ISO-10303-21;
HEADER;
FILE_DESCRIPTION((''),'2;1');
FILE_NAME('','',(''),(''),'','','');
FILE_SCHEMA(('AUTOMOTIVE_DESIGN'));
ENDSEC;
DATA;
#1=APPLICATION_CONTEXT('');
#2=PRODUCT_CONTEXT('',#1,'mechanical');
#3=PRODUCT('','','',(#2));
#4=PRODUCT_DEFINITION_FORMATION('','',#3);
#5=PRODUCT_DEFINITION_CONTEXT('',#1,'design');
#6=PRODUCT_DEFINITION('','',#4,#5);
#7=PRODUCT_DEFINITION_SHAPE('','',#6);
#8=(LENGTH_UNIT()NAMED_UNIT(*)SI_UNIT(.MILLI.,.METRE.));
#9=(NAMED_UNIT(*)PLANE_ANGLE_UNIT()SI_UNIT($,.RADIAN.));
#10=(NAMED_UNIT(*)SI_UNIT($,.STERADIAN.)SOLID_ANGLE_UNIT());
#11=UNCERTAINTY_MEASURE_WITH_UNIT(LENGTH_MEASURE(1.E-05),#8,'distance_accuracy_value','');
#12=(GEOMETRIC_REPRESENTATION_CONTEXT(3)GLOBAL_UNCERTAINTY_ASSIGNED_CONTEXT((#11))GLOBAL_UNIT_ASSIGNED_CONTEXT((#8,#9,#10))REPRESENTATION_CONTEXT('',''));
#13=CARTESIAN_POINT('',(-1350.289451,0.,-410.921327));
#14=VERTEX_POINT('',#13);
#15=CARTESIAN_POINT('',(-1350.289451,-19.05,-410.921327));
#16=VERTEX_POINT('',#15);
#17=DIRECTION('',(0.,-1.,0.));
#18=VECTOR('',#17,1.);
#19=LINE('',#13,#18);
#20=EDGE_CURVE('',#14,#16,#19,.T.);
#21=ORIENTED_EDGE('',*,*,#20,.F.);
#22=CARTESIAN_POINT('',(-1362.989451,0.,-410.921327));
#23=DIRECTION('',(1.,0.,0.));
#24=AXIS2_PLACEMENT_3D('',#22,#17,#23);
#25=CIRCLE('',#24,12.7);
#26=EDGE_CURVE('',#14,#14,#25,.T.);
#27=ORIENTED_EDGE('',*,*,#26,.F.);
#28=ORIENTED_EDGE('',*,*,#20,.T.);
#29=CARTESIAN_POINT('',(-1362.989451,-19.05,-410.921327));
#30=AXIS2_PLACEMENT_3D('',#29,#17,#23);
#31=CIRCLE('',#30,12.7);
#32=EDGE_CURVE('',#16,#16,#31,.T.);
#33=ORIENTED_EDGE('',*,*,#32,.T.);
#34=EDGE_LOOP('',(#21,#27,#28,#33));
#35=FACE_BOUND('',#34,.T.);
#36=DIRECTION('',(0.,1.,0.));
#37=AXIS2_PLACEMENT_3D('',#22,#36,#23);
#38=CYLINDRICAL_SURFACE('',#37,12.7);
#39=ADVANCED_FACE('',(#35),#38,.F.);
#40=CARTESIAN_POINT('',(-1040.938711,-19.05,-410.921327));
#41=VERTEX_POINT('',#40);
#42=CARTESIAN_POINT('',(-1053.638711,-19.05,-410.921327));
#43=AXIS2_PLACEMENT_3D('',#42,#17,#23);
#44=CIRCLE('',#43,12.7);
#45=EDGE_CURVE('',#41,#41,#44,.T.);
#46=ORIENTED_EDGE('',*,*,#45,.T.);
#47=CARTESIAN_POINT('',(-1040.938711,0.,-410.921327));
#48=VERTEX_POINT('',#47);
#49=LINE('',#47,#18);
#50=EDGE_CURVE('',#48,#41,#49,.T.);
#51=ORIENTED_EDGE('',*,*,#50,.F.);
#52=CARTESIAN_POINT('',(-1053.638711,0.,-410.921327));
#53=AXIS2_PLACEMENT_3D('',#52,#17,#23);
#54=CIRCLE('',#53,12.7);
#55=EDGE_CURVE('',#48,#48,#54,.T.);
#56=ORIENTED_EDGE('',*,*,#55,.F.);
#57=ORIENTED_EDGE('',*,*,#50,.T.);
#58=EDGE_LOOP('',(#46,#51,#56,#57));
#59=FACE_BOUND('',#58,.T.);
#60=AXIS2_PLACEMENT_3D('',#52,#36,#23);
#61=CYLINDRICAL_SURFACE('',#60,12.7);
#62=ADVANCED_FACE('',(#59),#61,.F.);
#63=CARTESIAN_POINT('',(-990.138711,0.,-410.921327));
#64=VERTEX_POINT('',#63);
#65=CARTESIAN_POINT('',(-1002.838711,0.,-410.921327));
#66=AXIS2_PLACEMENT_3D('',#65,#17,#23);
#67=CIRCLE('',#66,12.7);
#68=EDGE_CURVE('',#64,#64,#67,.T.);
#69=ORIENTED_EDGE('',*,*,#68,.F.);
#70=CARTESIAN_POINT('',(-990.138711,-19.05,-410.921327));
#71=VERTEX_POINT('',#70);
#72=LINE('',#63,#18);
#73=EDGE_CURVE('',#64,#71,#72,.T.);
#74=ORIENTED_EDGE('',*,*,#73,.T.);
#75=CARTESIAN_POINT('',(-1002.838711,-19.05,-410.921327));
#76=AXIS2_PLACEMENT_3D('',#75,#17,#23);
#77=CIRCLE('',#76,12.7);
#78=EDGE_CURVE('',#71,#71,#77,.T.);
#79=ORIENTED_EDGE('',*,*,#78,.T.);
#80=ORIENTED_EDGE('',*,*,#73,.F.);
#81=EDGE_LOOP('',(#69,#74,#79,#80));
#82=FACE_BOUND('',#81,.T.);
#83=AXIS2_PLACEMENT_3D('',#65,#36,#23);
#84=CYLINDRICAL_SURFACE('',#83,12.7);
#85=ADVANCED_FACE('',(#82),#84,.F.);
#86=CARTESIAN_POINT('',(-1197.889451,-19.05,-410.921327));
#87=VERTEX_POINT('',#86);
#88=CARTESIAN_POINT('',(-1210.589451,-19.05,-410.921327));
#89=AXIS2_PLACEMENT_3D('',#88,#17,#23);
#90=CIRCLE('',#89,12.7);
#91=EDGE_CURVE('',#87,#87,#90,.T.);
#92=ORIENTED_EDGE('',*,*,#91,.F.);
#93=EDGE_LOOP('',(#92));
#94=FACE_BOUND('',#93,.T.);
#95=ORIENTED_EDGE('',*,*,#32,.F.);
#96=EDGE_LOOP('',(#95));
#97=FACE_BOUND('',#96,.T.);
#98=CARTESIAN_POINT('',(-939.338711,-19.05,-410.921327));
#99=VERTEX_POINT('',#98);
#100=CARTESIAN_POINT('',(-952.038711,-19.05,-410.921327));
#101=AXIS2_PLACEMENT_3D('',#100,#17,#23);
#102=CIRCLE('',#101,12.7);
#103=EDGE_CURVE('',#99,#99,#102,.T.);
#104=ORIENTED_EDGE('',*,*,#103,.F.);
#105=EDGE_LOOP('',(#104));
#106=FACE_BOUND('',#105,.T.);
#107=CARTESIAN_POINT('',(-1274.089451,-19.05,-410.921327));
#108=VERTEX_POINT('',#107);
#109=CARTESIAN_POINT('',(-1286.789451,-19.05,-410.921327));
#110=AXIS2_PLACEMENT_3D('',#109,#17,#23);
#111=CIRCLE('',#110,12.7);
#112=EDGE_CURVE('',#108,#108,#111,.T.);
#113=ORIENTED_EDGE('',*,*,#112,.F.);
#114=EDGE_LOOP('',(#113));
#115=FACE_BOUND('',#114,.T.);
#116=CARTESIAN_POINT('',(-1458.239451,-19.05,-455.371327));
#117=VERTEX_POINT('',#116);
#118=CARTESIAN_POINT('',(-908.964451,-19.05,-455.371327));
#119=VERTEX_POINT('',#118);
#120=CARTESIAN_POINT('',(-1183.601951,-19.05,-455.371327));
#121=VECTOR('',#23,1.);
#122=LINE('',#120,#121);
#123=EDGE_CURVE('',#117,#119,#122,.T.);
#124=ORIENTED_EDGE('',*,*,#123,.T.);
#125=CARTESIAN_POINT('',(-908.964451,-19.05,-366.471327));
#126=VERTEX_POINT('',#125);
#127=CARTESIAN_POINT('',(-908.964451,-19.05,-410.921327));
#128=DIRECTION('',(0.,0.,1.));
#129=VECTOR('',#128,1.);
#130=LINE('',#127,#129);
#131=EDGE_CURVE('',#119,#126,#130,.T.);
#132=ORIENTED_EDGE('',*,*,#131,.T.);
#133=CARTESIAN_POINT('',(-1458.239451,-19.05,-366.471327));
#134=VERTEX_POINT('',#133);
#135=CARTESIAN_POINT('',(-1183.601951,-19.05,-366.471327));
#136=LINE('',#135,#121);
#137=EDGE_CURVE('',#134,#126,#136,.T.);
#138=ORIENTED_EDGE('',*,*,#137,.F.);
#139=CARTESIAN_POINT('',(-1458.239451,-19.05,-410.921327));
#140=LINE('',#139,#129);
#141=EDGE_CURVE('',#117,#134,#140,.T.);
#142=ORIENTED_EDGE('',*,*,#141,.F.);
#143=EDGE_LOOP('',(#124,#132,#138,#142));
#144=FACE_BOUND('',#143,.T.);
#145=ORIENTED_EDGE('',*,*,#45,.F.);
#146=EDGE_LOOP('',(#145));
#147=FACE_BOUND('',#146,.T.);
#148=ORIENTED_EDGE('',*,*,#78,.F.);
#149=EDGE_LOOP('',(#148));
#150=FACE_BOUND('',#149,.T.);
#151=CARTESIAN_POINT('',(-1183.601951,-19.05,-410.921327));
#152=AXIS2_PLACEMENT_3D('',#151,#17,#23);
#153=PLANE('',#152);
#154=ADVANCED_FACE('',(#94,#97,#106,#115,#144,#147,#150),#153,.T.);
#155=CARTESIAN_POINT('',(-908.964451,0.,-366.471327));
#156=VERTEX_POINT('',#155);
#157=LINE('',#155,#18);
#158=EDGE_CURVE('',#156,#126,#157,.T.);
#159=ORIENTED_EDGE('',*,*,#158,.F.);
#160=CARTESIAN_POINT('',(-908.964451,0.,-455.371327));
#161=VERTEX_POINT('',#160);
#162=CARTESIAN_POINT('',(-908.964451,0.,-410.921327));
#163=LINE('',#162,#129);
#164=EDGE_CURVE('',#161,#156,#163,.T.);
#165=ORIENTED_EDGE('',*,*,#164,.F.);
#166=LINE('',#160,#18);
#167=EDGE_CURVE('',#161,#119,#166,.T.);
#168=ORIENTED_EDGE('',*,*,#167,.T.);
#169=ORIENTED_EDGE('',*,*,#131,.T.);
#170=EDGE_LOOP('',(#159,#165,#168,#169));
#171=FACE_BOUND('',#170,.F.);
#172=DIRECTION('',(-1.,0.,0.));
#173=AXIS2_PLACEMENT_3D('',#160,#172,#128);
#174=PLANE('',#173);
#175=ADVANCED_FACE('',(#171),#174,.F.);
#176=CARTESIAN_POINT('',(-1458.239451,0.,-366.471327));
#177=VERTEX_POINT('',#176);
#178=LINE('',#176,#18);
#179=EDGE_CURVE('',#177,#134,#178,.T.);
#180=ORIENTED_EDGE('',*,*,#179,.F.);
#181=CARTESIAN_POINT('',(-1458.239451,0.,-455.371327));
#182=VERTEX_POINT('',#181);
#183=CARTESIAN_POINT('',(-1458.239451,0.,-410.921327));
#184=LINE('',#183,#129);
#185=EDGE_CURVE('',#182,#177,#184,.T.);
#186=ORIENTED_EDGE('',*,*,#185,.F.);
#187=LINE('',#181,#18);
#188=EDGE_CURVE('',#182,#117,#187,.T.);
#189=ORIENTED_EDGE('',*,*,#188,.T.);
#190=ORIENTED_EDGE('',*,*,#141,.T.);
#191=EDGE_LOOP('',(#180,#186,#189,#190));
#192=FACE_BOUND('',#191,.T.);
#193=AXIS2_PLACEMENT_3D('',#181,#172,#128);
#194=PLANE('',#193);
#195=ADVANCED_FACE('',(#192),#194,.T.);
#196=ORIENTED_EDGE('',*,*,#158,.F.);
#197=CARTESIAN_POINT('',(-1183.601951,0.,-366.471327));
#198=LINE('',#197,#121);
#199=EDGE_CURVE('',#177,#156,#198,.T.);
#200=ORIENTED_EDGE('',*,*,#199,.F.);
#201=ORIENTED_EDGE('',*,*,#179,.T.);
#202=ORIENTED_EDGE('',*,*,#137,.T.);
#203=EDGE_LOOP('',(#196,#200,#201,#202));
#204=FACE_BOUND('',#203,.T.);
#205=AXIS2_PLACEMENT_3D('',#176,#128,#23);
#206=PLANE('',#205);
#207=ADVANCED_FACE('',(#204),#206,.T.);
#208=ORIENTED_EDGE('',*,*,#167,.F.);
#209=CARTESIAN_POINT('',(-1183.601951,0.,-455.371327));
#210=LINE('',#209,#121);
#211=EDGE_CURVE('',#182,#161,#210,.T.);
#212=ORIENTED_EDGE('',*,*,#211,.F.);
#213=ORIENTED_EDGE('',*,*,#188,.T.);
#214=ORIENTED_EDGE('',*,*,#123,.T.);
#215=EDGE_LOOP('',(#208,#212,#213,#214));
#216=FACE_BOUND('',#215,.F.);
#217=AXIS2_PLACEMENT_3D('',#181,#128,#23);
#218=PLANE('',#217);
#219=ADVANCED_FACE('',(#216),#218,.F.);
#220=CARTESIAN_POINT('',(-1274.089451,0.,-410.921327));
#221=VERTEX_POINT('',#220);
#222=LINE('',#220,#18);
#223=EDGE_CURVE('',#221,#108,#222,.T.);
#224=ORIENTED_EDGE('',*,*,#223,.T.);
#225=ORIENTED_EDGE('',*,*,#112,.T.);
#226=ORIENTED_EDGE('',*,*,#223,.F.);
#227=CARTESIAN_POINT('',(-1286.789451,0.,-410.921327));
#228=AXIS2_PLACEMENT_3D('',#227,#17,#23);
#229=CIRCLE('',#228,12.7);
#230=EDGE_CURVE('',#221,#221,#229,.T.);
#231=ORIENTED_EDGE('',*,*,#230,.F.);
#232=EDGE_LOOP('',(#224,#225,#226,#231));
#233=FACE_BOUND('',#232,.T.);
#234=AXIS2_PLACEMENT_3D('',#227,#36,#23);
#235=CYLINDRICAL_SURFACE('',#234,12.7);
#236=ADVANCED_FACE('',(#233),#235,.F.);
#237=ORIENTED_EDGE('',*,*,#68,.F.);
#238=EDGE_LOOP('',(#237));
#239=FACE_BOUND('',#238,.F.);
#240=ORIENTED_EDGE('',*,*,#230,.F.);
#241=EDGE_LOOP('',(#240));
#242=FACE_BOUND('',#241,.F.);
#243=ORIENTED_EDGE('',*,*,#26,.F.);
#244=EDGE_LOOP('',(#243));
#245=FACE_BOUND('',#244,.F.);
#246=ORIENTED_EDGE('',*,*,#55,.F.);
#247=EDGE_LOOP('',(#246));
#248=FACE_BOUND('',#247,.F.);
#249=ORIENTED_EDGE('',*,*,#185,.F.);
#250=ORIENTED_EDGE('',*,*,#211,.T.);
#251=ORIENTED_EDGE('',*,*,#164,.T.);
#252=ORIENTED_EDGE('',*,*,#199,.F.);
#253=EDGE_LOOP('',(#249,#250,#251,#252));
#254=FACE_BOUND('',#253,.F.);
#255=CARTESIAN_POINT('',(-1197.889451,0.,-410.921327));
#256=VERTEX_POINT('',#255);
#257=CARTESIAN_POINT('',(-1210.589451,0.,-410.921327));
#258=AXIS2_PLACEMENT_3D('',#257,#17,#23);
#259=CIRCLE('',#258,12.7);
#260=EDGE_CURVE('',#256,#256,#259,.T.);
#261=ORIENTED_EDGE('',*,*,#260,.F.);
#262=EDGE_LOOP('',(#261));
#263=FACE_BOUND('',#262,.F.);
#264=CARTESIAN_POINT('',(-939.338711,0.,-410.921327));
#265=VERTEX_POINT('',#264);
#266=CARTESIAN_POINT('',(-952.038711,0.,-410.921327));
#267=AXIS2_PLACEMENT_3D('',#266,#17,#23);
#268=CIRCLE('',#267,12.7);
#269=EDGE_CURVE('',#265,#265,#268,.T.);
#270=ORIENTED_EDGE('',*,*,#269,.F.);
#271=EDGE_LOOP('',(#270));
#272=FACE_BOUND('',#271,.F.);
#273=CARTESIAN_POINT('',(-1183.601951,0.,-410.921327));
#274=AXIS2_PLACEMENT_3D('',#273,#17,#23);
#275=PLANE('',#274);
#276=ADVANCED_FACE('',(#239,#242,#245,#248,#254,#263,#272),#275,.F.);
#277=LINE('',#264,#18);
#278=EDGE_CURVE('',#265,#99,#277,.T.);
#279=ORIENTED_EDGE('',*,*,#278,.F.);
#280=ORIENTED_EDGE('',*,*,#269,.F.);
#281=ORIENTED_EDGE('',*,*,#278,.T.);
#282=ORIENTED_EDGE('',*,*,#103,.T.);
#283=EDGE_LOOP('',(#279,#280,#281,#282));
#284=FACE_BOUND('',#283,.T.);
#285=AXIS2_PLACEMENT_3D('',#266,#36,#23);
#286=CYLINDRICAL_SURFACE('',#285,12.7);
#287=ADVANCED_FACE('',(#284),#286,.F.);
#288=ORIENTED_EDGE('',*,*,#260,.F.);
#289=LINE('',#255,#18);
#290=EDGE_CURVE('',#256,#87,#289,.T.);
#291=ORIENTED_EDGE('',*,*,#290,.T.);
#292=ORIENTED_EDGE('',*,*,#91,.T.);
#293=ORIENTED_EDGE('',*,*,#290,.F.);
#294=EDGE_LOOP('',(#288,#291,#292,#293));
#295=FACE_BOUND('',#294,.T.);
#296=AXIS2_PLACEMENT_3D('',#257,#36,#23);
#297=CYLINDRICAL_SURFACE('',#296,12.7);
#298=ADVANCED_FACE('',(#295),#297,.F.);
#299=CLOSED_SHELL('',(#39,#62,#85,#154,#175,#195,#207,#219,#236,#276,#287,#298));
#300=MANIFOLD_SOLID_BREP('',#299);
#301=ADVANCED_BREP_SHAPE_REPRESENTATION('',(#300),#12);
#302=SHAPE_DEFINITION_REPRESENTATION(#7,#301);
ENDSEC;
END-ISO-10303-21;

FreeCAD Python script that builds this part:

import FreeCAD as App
import Part
import Sketcher
Q = App.Units.Quantity


def add_polygon(sketch, points):
    """Adds a closed chain of lines whose ends are joined by coincident constraints."""
    first, n = sketch.GeometryCount, len(points)
    for a, b in zip(points, points[1:] + points[:1]):
        sketch.addGeometry(Part.LineSegment(App.Vector(*a, 0), App.Vector(*b, 0)), False)
    for i in range(n):
        sketch.addConstraint(Sketcher.Constraint("Coincident", first + i, 2, first + (i + 1) % n, 1))

doc = App.newDocument("Part")
body = doc.addObject("PartDesign::Body", "Body")

# Sketch on XZ plane
sketch1 = body.newObject("Sketcher::SketchObject", "Sketch")
sketch1.AttachmentSupport = (doc.getObject("XZ_Plane"), [""])
sketch1.MapMode = "FlatFace"
add_polygon(sketch1, [(-1458, -366), (-1458, -455), (-909, -455), (-909, -366)])  # lines 0-3
sketch1.addGeometry(Part.Circle(App.Vector(-1363, -411, 0), App.Vector(0, 0, 1), 13), False)  # 4
sketch1.addGeometry(Part.Circle(App.Vector(-1287, -411, 0), App.Vector(0, 0, 1), 13), False)  # 5
sketch1.addGeometry(Part.Circle(App.Vector(-1211, -411, 0), App.Vector(0, 0, 1), 13), False)  # 6
sketch1.addGeometry(Part.Circle(App.Vector(-1054, -411, 0), App.Vector(0, 0, 1), 13), False)  # 7
sketch1.addGeometry(Part.Circle(App.Vector(-1003, -411, 0), App.Vector(0, 0, 1), 13), False)  # 8
sketch1.addGeometry(Part.Circle(App.Vector(-952, -411, 0), App.Vector(0, 0, 1), 13), False)  # 9
sketch1.addConstraint([
    Sketcher.Constraint("Vertical", 0),
    Sketcher.Constraint("Horizontal", 1),
    Sketcher.Constraint("Vertical", 2),
    Sketcher.Constraint("Horizontal", 3),
    Sketcher.Constraint("Equal", 4, 5),
    Sketcher.Constraint("Equal", 5, 6),
    Sketcher.Constraint("Equal", 6, 7),
    Sketcher.Constraint("Equal", 7, 8),
    Sketcher.Constraint("Equal", 8, 9),
    Sketcher.Constraint("Horizontal", 4, 3, 5, 3),
    Sketcher.Constraint("Horizontal", 5, 3, 6, 3),
    Sketcher.Constraint("Horizontal", 6, 3, 7, 3),
    Sketcher.Constraint("Horizontal", 7, 3, 8, 3),
    Sketcher.Constraint("Horizontal", 8, 3, 9, 3),
    Sketcher.Constraint("Diameter", 4, Q("1 in")),
    Sketcher.Constraint("DistanceY", 0, 2, 0, 1, Q("3.5 in")),
    Sketcher.Constraint("DistanceX", 4, 3, 5, 3, Q("3 in")),
    Sketcher.Constraint("DistanceX", 5, 3, 6, 3, Q("3 in")),
    Sketcher.Constraint("DistanceX", 7, 3, 8, 3, Q("2 in")),
    Sketcher.Constraint("DistanceX", 8, 3, 9, 3, Q("2 in")),
    Sketcher.Constraint("DistanceX", 1, 1, 1, 2, Q("21.625 in")),
    Sketcher.Constraint("DistanceX", 0, 2, 4, 3, Q("3.75 in")),
    Sketcher.Constraint("DistanceY", 0, 2, 4, 3, Q("1.75 in")),
    Sketcher.Constraint("DistanceX", 4, 3, -1, 1, Q("1362.989451 mm")),
    Sketcher.Constraint("DistanceX", 7, 3, -1, 1, Q("1053.638711 mm")),
    Sketcher.Constraint("DistanceY", 4, 3, -1, 1, Q("410.921327 mm")),
])
pad1 = body.newObject("PartDesign::Pad", "Pad")
pad1.Profile = sketch1
pad1.Length = Q("0.75 in")

doc.recompute()
